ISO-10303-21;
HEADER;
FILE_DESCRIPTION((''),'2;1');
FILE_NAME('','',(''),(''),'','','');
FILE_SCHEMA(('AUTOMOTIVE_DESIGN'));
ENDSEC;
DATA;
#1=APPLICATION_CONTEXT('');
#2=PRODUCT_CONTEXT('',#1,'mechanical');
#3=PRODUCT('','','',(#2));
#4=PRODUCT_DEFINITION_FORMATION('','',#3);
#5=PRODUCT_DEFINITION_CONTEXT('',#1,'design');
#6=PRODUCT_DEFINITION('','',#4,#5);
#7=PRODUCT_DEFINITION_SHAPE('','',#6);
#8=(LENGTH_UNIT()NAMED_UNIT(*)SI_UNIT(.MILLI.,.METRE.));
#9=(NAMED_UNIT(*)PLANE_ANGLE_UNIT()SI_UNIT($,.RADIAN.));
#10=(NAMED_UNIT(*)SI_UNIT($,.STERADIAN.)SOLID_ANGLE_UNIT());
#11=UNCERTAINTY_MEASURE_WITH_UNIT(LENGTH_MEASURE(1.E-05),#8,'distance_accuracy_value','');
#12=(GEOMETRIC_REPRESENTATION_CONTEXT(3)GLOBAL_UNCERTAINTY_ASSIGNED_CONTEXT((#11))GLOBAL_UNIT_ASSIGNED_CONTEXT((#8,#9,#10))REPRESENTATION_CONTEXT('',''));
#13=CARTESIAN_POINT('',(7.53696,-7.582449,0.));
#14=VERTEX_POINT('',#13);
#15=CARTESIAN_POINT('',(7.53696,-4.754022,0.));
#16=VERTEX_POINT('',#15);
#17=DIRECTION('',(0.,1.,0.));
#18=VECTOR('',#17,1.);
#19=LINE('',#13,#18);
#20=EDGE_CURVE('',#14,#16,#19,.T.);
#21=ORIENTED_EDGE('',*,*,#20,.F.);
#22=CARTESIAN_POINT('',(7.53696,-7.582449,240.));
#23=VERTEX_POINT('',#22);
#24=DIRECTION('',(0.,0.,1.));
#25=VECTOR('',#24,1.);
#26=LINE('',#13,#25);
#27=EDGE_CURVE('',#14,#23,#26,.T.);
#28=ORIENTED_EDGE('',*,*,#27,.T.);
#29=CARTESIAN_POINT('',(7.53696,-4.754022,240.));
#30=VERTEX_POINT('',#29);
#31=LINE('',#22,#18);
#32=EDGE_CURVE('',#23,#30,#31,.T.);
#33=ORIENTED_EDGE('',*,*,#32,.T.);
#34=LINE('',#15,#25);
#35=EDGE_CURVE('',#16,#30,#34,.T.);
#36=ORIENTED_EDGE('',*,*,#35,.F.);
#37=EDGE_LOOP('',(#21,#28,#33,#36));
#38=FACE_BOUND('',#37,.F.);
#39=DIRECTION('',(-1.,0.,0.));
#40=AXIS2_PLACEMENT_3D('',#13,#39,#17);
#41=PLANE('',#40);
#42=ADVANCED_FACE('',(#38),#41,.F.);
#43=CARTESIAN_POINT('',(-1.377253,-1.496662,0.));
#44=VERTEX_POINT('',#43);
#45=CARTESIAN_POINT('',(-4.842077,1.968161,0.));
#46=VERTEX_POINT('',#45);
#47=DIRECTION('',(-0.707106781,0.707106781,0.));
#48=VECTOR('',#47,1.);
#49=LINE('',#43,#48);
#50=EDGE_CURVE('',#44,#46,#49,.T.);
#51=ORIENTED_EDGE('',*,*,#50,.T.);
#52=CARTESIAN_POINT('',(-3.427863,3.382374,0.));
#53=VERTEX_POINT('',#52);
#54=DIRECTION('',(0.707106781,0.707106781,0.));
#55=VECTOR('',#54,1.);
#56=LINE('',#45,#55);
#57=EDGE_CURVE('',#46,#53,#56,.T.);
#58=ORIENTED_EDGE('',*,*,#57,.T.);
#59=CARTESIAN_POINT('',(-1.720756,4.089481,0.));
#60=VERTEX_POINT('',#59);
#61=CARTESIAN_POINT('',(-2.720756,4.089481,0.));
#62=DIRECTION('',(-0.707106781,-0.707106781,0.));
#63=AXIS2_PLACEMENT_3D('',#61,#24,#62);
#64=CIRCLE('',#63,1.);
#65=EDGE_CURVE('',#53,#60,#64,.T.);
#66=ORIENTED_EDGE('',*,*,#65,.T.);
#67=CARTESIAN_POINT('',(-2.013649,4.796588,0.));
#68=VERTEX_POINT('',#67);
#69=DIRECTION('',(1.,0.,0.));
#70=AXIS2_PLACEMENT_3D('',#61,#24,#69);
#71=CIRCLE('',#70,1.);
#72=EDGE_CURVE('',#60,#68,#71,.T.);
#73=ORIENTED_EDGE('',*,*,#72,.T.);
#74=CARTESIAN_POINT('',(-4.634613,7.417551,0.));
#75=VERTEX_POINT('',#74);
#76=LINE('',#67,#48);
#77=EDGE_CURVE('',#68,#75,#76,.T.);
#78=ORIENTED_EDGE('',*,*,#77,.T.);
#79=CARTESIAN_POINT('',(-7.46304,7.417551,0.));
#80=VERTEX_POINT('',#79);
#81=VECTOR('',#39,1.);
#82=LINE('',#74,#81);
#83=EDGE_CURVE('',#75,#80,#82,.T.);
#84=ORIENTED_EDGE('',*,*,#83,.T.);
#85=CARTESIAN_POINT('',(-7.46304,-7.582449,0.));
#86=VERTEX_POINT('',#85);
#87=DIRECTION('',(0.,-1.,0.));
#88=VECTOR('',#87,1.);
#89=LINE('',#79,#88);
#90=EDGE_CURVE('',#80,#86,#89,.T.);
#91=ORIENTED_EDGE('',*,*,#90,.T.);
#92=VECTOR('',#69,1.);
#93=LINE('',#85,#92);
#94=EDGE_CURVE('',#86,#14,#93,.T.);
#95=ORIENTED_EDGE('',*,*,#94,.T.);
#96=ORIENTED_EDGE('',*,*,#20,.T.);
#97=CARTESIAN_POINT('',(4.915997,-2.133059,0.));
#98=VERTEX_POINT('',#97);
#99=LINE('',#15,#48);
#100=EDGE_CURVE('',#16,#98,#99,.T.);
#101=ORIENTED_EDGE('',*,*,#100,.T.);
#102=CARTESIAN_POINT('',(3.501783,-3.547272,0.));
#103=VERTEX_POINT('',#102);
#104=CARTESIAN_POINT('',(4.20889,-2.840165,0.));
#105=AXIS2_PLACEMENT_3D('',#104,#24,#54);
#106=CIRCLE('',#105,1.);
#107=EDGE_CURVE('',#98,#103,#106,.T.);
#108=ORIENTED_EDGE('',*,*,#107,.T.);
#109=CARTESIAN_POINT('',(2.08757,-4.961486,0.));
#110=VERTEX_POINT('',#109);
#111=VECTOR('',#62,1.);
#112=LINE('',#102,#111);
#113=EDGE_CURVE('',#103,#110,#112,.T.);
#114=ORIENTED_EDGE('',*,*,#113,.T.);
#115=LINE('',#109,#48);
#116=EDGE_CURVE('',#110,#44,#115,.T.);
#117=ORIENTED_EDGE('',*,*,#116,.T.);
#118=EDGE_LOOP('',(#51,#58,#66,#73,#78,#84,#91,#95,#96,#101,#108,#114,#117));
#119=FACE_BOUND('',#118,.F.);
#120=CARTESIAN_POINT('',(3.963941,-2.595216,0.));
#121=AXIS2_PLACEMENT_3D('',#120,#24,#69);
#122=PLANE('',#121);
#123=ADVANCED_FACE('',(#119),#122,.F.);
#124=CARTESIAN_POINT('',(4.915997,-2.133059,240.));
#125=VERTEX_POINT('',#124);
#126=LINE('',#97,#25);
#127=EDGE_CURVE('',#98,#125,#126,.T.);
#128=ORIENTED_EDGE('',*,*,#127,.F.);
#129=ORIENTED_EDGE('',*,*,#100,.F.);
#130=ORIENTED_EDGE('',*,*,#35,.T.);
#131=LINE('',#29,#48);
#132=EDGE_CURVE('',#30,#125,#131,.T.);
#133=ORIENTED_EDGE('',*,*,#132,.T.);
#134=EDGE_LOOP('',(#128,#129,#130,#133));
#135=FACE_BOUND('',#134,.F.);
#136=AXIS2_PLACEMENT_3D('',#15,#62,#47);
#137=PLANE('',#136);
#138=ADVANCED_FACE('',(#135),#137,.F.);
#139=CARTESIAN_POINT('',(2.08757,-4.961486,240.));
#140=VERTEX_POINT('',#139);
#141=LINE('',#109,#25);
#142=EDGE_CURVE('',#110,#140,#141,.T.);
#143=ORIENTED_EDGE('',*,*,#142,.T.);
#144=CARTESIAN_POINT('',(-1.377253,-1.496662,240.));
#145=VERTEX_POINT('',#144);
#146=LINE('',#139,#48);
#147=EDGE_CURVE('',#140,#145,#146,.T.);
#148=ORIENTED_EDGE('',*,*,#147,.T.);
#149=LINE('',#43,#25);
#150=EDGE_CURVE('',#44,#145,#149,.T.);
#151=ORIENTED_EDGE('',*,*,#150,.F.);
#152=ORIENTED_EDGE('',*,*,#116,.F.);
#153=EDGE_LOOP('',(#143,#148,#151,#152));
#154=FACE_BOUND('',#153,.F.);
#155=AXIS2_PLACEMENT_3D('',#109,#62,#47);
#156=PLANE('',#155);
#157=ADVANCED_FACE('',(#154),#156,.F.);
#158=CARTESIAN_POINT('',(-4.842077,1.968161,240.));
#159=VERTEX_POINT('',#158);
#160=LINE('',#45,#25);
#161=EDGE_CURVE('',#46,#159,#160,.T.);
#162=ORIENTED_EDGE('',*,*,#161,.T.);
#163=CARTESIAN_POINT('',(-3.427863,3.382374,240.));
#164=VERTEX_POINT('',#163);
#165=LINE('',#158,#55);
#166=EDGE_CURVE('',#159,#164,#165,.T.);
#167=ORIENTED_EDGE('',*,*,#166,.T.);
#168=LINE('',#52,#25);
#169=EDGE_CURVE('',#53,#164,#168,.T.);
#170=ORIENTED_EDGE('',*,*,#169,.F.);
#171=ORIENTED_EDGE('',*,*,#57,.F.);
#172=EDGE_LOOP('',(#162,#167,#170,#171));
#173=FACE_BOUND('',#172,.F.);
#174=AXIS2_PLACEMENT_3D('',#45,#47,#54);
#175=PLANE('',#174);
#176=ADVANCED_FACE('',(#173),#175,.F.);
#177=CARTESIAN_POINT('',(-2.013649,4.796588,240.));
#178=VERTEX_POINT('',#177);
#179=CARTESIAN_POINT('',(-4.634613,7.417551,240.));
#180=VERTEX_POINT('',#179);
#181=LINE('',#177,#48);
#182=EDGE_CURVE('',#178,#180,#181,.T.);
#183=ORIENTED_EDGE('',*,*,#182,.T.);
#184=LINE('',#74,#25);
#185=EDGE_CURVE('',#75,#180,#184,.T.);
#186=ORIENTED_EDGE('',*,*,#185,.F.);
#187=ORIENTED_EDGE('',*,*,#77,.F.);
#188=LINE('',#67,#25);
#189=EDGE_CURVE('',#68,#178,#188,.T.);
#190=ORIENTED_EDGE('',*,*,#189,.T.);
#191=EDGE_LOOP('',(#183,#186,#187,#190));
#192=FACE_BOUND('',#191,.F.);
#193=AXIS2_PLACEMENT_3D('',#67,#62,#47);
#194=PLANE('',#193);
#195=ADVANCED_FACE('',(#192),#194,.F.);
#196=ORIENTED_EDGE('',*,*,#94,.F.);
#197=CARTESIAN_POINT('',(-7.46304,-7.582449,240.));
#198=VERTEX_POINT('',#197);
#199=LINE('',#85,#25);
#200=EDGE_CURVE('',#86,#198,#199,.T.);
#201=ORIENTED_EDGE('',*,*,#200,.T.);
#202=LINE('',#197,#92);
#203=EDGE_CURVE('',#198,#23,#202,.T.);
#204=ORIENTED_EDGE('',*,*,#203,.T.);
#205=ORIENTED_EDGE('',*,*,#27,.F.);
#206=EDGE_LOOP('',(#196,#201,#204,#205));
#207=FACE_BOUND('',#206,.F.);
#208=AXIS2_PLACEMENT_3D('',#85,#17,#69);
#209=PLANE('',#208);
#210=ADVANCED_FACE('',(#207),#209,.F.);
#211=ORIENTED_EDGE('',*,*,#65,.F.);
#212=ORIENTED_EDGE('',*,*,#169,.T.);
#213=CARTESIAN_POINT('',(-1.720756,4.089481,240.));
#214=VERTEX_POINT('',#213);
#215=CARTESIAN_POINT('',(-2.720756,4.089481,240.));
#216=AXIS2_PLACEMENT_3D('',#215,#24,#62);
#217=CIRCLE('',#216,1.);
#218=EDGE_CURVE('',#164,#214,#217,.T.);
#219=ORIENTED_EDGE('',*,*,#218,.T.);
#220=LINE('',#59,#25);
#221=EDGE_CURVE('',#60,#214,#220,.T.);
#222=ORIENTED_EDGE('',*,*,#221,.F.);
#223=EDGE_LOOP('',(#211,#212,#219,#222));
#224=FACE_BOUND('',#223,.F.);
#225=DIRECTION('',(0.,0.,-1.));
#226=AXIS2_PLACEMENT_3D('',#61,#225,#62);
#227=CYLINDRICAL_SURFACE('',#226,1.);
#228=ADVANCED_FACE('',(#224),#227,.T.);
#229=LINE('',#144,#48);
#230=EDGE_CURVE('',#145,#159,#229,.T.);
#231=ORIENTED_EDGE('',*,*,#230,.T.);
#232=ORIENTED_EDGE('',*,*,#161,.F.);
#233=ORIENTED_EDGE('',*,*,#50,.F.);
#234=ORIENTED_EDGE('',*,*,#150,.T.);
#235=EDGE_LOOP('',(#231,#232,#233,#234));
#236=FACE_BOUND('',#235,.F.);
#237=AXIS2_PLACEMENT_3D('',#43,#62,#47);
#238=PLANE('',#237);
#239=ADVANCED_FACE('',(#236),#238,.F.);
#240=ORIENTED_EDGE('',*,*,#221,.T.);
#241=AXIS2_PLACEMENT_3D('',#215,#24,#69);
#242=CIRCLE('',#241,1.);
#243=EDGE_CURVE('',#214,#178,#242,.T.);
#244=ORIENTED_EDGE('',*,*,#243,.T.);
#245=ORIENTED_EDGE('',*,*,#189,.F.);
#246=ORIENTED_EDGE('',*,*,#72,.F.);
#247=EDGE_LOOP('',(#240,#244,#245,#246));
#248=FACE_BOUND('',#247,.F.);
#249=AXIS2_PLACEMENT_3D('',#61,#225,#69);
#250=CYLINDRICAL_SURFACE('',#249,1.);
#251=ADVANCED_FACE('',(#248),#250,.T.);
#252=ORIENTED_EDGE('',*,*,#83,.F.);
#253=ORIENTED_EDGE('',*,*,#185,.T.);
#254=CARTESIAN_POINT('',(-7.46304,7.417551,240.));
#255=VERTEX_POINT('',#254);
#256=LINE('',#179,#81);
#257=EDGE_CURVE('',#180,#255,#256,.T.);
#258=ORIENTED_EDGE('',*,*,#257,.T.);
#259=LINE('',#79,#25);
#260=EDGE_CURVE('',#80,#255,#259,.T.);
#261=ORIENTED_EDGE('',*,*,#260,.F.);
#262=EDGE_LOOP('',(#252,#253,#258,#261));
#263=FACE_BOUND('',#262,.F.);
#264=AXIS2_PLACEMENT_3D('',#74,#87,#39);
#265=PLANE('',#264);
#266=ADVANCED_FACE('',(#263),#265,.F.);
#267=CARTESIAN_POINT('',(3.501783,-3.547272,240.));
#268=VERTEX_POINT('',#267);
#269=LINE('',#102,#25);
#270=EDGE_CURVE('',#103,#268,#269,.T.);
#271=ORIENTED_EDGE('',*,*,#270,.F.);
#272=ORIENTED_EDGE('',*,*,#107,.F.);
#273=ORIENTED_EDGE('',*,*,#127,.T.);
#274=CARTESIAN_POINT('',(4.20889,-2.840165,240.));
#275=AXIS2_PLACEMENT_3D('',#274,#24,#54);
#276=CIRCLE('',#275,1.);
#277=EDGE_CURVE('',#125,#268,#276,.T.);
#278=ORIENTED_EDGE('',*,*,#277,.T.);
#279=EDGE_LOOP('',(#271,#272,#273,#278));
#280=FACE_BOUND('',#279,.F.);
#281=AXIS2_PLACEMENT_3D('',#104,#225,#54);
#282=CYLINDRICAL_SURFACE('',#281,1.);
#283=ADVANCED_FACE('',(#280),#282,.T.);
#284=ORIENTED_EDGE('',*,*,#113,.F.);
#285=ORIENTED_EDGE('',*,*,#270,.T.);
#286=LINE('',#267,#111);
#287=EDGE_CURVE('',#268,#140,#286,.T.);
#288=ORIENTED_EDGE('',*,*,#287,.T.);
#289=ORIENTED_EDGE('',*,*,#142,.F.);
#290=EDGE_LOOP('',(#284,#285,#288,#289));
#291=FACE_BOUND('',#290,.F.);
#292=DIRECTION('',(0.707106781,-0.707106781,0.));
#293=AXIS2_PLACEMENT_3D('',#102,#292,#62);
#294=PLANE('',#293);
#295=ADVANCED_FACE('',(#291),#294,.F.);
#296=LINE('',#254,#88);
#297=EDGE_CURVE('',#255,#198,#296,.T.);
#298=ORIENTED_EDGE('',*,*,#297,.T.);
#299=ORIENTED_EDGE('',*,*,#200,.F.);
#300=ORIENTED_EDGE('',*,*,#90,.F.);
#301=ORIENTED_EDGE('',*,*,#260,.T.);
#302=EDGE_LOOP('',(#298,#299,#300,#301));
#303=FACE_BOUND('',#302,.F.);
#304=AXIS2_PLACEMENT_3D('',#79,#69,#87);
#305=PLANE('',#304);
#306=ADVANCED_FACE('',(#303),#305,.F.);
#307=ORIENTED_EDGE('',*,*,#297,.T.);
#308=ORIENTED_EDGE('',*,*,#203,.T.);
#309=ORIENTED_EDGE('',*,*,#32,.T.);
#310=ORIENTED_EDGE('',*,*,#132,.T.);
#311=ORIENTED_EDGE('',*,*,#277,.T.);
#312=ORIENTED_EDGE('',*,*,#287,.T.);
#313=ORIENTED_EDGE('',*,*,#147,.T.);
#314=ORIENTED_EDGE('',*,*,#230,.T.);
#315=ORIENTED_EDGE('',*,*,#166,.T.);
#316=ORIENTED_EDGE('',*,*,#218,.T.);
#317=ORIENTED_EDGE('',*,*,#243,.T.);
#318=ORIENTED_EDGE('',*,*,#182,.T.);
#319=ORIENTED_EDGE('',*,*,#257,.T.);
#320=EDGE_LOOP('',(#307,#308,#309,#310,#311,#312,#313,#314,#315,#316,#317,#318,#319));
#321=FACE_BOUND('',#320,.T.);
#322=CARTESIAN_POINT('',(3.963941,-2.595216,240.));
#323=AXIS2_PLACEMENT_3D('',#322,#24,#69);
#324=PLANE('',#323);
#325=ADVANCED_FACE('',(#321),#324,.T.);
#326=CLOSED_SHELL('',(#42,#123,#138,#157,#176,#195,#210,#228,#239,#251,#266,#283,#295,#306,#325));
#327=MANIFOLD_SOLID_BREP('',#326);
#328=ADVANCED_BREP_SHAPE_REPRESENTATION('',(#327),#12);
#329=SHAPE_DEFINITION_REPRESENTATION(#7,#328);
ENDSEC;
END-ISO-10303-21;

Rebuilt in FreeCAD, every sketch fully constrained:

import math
import FreeCAD as App
import Part
import Sketcher

doc = App.newDocument("Part")
body = doc.addObject("PartDesign::Body", "Body")

# Sketch on XY plane
sketch1 = body.newObject("Sketcher::SketchObject", "Sketch")
sketch1.AttachmentSupport = (doc.getObject("XY_Plane"), [""])
sketch1.MapMode = "FlatFace"
sketch1.addGeometry([
    Part.ArcOfCircle(Part.Circle(App.Vector(4.20889, -2.840165, 0), App.Vector(0, 0, 1), 1), math.radians(45), math.radians(225)),  # 0
    Part.LineSegment(App.Vector(3.501783, -3.547272, 0), App.Vector(2.08757, -4.961486, 0)),  # 1
    Part.LineSegment(App.Vector(2.08757, -4.961486, 0), App.Vector(-1.377253, -1.496662, 0)),  # 2
    Part.LineSegment(App.Vector(-1.377253, -1.496662, 0), App.Vector(-4.842077, 1.968161, 0)),  # 3
    Part.LineSegment(App.Vector(-4.842077, 1.968161, 0), App.Vector(-3.427863, 3.382374, 0)),  # 4
    Part.ArcOfCircle(Part.Circle(App.Vector(-2.720756, 4.089481, 0), App.Vector(0, 0, 1), 1), math.radians(-135), math.radians(0)),  # 5
    Part.ArcOfCircle(Part.Circle(App.Vector(-2.720756, 4.089481, 0), App.Vector(0, 0, 1), 1), math.radians(0), math.radians(45)),  # 6
    Part.LineSegment(App.Vector(-2.013649, 4.796588, 0), App.Vector(-4.634613, 7.417551, 0)),  # 7
    Part.LineSegment(App.Vector(-4.634613, 7.417551, 0), App.Vector(-7.46304, 7.417551, 0)),  # 8
    Part.LineSegment(App.Vector(-7.46304, 7.417551, 0), App.Vector(-7.46304, -7.582449, 0)),  # 9
    Part.LineSegment(App.Vector(-7.46304, -7.582449, 0), App.Vector(7.53696, -7.582449, 0)),  # 10
    Part.LineSegment(App.Vector(7.53696, -7.582449, 0), App.Vector(7.53696, -4.754022, 0)),  # 11
    Part.LineSegment(App.Vector(7.53696, -4.754022, 0), App.Vector(4.915997, -2.133059, 0)),  # 12
], False)
sketch1.addConstraint([
    Sketcher.Constraint("Coincident", 0, 2, 1, 1),
    Sketcher.Constraint("Coincident", 1, 2, 2, 1),
    Sketcher.Constraint("Coincident", 2, 2, 3, 1),
    Sketcher.Constraint("Coincident", 3, 2, 4, 1),
    Sketcher.Constraint("Coincident", 4, 2, 5, 1),
    Sketcher.Constraint("Tangent", 5, 2, 6, 1),
    Sketcher.Constraint("Tangent", 6, 2, 7, 1),
    Sketcher.Constraint("Coincident", 7, 2, 8, 1),
    Sketcher.Constraint("Coincident", 8, 2, 9, 1),
    Sketcher.Constraint("Coincident", 9, 2, 10, 1),
    Sketcher.Constraint("Coincident", 10, 2, 11, 1),
    Sketcher.Constraint("Coincident", 11, 2, 12, 1),
    Sketcher.Constraint("Tangent", 12, 2, 0, 1),
    Sketcher.Constraint("Horizontal", 8),
    Sketcher.Constraint("Vertical", 9),
    Sketcher.Constraint("Horizontal", 10),
    Sketcher.Constraint("Vertical", 11),
    Sketcher.Constraint("Equal", 0, 5),
    Sketcher.Constraint("Equal", 5, 6),
    Sketcher.Constraint("Perpendicular", 1, 2),
    Sketcher.Constraint("Parallel", 2, 3),
    Sketcher.Constraint("Perpendicular", 3, 4),
    Sketcher.Constraint("Perpendicular", 4, 7),
    Sketcher.Constraint("Parallel", 7, 12),
    Sketcher.Constraint("Horizontal", 6, 3, 5, 2),
    Sketcher.Constraint("Equal", 10, 9),
    Sketcher.Constraint("Equal", 8, 11),
    Sketcher.Constraint("Equal", 2, 3),
    Sketcher.Constraint("Equal", 1, 4),
    Sketcher.Constraint("Equal", 7, 12),
    Sketcher.Constraint("Radius", 0, 1.0),
    Sketcher.Constraint("DistanceX", 10, 1, 10, 2, 15.0),
    Sketcher.Constraint("Distance", 1, 2.0),
    Sketcher.Constraint("Distance", 2, 4.9),
    Sketcher.Constraint("Distance", 7, 3.706602),
    Sketcher.Constraint("DistanceX", 8, 2, 8, 1, 2.828427),
    Sketcher.Constraint("DistanceX", -1, 1, 0, 3, 4.20889),
    Sketcher.Constraint("DistanceY", -1, 1, 5, 3, 4.089481),
    Sketcher.Constraint("DistanceX", -1, 1, 1, 2, 2.08757),
])
pad1 = body.newObject("PartDesign::Pad", "Pad")
pad1.Profile = sketch1
pad1.Length = 240

doc.recompute()
